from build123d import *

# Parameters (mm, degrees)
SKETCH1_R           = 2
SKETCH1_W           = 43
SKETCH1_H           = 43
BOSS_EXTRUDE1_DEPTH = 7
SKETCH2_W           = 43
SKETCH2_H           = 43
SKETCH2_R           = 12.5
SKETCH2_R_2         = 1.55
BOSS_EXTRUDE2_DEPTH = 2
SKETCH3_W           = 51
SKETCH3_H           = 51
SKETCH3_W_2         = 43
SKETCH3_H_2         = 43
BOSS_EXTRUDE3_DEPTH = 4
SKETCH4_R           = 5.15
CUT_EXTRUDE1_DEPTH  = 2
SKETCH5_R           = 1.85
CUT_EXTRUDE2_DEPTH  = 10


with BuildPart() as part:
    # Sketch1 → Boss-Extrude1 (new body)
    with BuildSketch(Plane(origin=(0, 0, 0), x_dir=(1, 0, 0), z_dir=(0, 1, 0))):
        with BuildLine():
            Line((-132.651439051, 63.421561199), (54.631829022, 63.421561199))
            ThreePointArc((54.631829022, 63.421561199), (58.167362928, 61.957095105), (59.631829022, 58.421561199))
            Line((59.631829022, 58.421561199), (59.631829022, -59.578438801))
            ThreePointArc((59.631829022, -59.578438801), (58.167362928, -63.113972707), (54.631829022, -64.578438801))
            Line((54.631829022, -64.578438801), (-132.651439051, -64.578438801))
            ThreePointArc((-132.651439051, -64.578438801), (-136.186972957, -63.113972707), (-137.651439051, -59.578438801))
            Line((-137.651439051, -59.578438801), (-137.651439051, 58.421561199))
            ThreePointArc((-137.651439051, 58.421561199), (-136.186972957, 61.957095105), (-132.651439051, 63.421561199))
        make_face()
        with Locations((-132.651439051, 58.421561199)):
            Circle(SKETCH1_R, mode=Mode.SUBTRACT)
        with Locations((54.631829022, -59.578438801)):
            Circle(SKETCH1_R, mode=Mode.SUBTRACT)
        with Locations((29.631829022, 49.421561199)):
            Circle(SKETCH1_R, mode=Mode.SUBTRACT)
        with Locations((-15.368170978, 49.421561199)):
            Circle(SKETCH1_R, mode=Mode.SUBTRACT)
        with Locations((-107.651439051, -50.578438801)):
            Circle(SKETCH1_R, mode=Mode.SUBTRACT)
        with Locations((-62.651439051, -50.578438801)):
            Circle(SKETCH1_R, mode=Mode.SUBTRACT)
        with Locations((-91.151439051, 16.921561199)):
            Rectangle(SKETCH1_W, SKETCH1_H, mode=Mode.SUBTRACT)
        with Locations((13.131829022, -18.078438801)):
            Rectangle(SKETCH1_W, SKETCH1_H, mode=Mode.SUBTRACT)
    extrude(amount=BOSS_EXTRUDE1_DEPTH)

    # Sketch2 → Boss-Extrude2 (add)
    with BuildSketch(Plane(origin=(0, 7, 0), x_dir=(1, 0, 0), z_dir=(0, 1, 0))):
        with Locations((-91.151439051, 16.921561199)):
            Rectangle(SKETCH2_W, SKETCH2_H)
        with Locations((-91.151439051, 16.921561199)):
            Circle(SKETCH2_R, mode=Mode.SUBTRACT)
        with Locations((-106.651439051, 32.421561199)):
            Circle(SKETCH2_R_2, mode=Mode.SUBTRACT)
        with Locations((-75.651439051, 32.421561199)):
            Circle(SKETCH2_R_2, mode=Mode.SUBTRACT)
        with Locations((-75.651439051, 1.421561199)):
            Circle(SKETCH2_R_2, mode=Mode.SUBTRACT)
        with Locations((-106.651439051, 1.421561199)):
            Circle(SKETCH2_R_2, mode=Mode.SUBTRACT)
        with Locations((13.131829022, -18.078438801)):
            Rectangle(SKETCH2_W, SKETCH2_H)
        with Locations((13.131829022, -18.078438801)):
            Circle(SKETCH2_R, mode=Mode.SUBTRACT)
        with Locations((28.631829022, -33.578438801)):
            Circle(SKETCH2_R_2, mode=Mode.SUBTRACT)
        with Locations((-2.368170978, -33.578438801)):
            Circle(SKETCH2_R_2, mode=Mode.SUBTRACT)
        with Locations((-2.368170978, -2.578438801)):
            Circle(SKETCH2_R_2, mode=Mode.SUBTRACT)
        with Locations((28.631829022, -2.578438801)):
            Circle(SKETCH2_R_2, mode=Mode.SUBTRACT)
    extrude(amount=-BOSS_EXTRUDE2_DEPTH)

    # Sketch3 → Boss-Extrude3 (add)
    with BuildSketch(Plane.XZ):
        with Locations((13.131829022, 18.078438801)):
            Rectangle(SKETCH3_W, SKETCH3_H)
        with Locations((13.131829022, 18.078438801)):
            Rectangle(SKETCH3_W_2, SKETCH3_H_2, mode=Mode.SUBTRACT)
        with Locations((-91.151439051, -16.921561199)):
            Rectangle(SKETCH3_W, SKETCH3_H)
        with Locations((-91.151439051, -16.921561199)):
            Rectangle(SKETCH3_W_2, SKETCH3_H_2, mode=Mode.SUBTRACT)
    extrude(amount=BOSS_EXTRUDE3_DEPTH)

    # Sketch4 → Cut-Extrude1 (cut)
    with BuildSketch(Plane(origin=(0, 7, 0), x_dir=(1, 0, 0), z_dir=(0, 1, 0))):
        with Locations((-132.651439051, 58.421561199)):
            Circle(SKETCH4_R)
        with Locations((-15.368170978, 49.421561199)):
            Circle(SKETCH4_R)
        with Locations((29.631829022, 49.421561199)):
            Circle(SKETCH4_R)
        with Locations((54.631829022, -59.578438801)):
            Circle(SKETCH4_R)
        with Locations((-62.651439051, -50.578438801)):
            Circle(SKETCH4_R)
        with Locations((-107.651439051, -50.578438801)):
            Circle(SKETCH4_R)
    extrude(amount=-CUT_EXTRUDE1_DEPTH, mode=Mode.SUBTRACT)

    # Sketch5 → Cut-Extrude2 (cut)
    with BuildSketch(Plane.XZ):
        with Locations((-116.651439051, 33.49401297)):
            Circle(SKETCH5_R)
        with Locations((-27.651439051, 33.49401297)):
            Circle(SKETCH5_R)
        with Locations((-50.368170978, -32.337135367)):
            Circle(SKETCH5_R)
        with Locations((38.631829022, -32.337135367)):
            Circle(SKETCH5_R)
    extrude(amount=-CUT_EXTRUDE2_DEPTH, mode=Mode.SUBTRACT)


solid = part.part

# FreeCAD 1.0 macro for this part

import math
import FreeCAD as App
import Part
import Sketcher
from FreeCAD import Vector
Q = App.Units.Quantity


def add_polygon(sketch, points):
    """Adds a closed chain of lines whose ends are joined by coincident constraints."""
    first, n = sketch.GeometryCount, len(points)
    for a, b in zip(points, points[1:] + points[:1]):
        sketch.addGeometry(Part.LineSegment(App.Vector(*a, 0), App.Vector(*b, 0)), False)
    for i in range(n):
        sketch.addConstraint(Sketcher.Constraint("Coincident", first + i, 2, first + (i + 1) % n, 1))

doc = App.newDocument("Part")
body = doc.addObject("PartDesign::Body", "Body")

# Sketch on XZ plane
sketch1 = body.newObject("Sketcher::SketchObject", "Sketch")
sketch1.AttachmentSupport = (doc.getObject("XZ_Plane"), [""])
sketch1.MapMode = "FlatFace"
sketch1.addGeometry(Part.LineSegment(Vector(54.631829, -63.421561, 0), Vector(-132.651439, -63.421561, 0)), False)  # 0
sketch1.addGeometry(Part.ArcOfCircle(Part.Circle(Vector(-132.651439, -58.421561, 0), Vector(0, 0, 1), 5), math.radians(180), math.radians(270)), False)  # 1
sketch1.addGeometry(Part.LineSegment(Vector(-137.651439, -58.421561, 0), Vector(-137.651439, 59.578439, 0)), False)  # 2
sketch1.addGeometry(Part.ArcOfCircle(Part.Circle(Vector(-132.651439, 59.578439, 0), Vector(0, 0, 1), 5), math.radians(90), math.radians(180)), False)  # 3
sketch1.addGeometry(Part.LineSegment(Vector(-132.651439, 64.578439, 0), Vector(54.631829, 64.578439, 0)), False)  # 4
sketch1.addGeometry(Part.ArcOfCircle(Part.Circle(Vector(54.631829, 59.578439, 0), Vector(0, 0, 1), 5), math.radians(0), math.radians(90)), False)  # 5
sketch1.addGeometry(Part.LineSegment(Vector(59.631829, 59.578439, 0), Vector(59.631829, -58.421561, 0)), False)  # 6
sketch1.addGeometry(Part.ArcOfCircle(Part.Circle(Vector(54.631829, -58.421561, 0), Vector(0, 0, 1), 5), math.radians(-90), math.radians(0)), False)  # 7
sketch1.addGeometry(Part.Circle(Vector(54.631829, 59.578439, 0), Vector(0, 0, 1), 2), False)  # 8
add_polygon(sketch1, [(-8.368171, 39.578439), (-8.368171, -3.421561), (34.631829, -3.421561), (34.631829, 39.578439)])  # lines 9-12
sketch1.addGeometry(Part.Circle(Vector(-62.651439, 50.578439, 0), Vector(0, 0, 1), 2), False)  # 13
sketch1.addGeometry(Part.Circle(Vector(-107.651439, 50.578439, 0), Vector(0, 0, 1), 2), False)  # 14
sketch1.addGeometry(Part.Circle(Vector(29.631829, -49.421561, 0), Vector(0, 0, 1), 2), False)  # 15
sketch1.addGeometry(Part.Circle(Vector(-15.368171, -49.421561, 0), Vector(0, 0, 1), 2), False)  # 16
add_polygon(sketch1, [(-112.651439, 4.578439), (-112.651439, -38.421561), (-69.651439, -38.421561), (-69.651439, 4.578439)])  # lines 17-20
sketch1.addGeometry(Part.Circle(Vector(-132.651439, -58.421561, 0), Vector(0, 0, 1), 2), False)  # 21
sketch1.addConstraint(Sketcher.Constraint("Tangent", 0, 2, 1, 2))
sketch1.addConstraint(Sketcher.Constraint("Tangent", 1, 1, 2, 1))
sketch1.addConstraint(Sketcher.Constraint("Tangent", 2, 2, 3, 2))
sketch1.addConstraint(Sketcher.Constraint("Tangent", 3, 1, 4, 1))
sketch1.addConstraint(Sketcher.Constraint("Tangent", 4, 2, 5, 2))
sketch1.addConstraint(Sketcher.Constraint("Tangent", 5, 1, 6, 1))
sketch1.addConstraint(Sketcher.Constraint("Tangent", 6, 2, 7, 2))
sketch1.addConstraint(Sketcher.Constraint("Tangent", 7, 1, 0, 1))
sketch1.addConstraint(Sketcher.Constraint("Horizontal", 0))
sketch1.addConstraint(Sketcher.Constraint("Vertical", 2))
sketch1.addConstraint(Sketcher.Constraint("Horizontal", 4))
sketch1.addConstraint(Sketcher.Constraint("Vertical", 6))
sketch1.addConstraint(Sketcher.Constraint("Vertical", 9))
sketch1.addConstraint(Sketcher.Constraint("Horizontal", 10))
sketch1.addConstraint(Sketcher.Constraint("Vertical", 11))
sketch1.addConstraint(Sketcher.Constraint("Horizontal", 12))
sketch1.addConstraint(Sketcher.Constraint("Vertical", 17))
sketch1.addConstraint(Sketcher.Constraint("Horizontal", 18))
sketch1.addConstraint(Sketcher.Constraint("Vertical", 19))
sketch1.addConstraint(Sketcher.Constraint("Horizontal", 20))
sketch1.addConstraint(Sketcher.Constraint("Coincident", 8, 3, 5, 3))
sketch1.addConstraint(Sketcher.Constraint("Coincident", 21, 3, 1, 3))
sketch1.addConstraint(Sketcher.Constraint("Equal", 1, 3))
sketch1.addConstraint(Sketcher.Constraint("Equal", 3, 5))
sketch1.addConstraint(Sketcher.Constraint("Equal", 5, 7))
sketch1.addConstraint(Sketcher.Constraint("Equal", 8, 13))
sketch1.addConstraint(Sketcher.Constraint("Equal", 13, 14))
sketch1.addConstraint(Sketcher.Constraint("Equal", 14, 15))
sketch1.addConstraint(Sketcher.Constraint("Equal", 15, 16))
sketch1.addConstraint(Sketcher.Constraint("Equal", 16, 21))
sketch1.addConstraint(Sketcher.Constraint("Horizontal", 13, 3, 14, 3))
sketch1.addConstraint(Sketcher.Constraint("Horizontal", 15, 3, 16, 3))
sketch1.addConstraint(Sketcher.Constraint("Equal", 12, 18))
sketch1.addConstraint(Sketcher.Constraint("Equal", 20, 9))
sketch1.addConstraint(Sketcher.Constraint("Equal", 11, 17))
sketch1.addConstraint(Sketcher.Constraint("Diameter", 8, Q("4 mm")))
sketch1.addConstraint(Sketcher.Constraint("Radius", 1, Q("5 mm")))
sketch1.addConstraint(Sketcher.Constraint("DistanceX", 10, 1, 10, 2, Q("43 mm")))
sketch1.addConstraint(Sketcher.Constraint("DistanceY", 2, 1, 2, 2, Q("118 mm")))
sketch1.addConstraint(Sketcher.Constraint("DistanceX", 3, 3, 13, 3, Q("70 mm")))
sketch1.addConstraint(Sketcher.Constraint("DistanceY", 13, 3, 3, 3, Q("9 mm")))
sketch1.addConstraint(Sketcher.Constraint("DistanceX", 3, 3, 14, 3, Q("25 mm")))
sketch1.addConstraint(Sketcher.Constraint("DistanceX", 15, 3, 7, 3, Q("25 mm")))
sketch1.addConstraint(Sketcher.Constraint("DistanceY", 7, 3, 15, 3, Q("9 mm")))
sketch1.addConstraint(Sketcher.Constraint("DistanceX", 16, 3, 15, 3, Q("45 mm")))
sketch1.addConstraint(Sketcher.Constraint("DistanceX", 16, 3, 9, 2, Q("7 mm")))
sketch1.addConstraint(Sketcher.Constraint("DistanceY", 16, 3, 9, 2, Q("46 mm")))
sketch1.addConstraint(Sketcher.Constraint("DistanceX", 1, 3, 17, 2, Q("20 mm")))
sketch1.addConstraint(Sketcher.Constraint("DistanceY", 1, 3, 17, 2, Q("20 mm")))
sketch1.addConstraint(Sketcher.Constraint("DistanceX", 0, 2, 0, 1, Q("187.283268 mm")))
sketch1.addConstraint(Sketcher.Constraint("DistanceX", 1, 3, -1, 1, Q("132.651439 mm")))
sketch1.addConstraint(Sketcher.Constraint("DistanceY", 1, 3, -1, 1, Q("58.421561 mm")))
pad1 = body.newObject("PartDesign::Pad", "Pad")
pad1.Profile = sketch1
pad1.Length = 7
pad1.Reversed = True

# Sketch on XZ plane
sketch2 = body.newObject("Sketcher::SketchObject", "Sketch001")
sketch2.AttachmentSupport = (doc.getObject("XZ_Plane"), [""])
sketch2.MapMode = "FlatFace"
sketch2.AttachmentOffset = App.Placement(Vector(0, 0, -7), App.Rotation())
add_polygon(sketch2, [(-112.651439, -38.421561), (-112.651439, 4.578439), (-69.651439, 4.578439), (-69.651439, -38.421561)])  # lines 0-3
sketch2.addGeometry(Part.Circle(Vector(-106.651439, -1.421561, 0), Vector(0, 0, 1), 1.55), False)  # 4
sketch2.addGeometry(Part.Circle(Vector(-75.651439, -1.421561, 0), Vector(0, 0, 1), 1.55), False)  # 5
sketch2.addGeometry(Part.Circle(Vector(-91.151439, -16.921561, 0), Vector(0, 0, 1), 12.5), False)  # 6
sketch2.addGeometry(Part.Circle(Vector(-106.651439, -32.421561, 0), Vector(0, 0, 1), 1.55), False)  # 7
sketch2.addGeometry(Part.Circle(Vector(-75.651439, -32.421561, 0), Vector(0, 0, 1), 1.55), False)  # 8
add_polygon(sketch2, [(-8.368171, -3.421561), (-8.368171, 39.578439), (34.631829, 39.578439), (34.631829, -3.421561)])  # lines 9-12
sketch2.addGeometry(Part.Circle(Vector(-2.368171, 33.578439, 0), Vector(0, 0, 1), 1.55), False)  # 13
sketch2.addGeometry(Part.Circle(Vector(28.631829, 33.578439, 0), Vector(0, 0, 1), 1.55), False)  # 14
sketch2.addGeometry(Part.Circle(Vector(-2.368171, 2.578439, 0), Vector(0, 0, 1), 1.55), False)  # 15
sketch2.addGeometry(Part.Circle(Vector(13.131829, 18.078439, 0), Vector(0, 0, 1), 12.5), False)  # 16
sketch2.addGeometry(Part.Circle(Vector(28.631829, 2.578439, 0), Vector(0, 0, 1), 1.55), False)  # 17
sketch2.addConstraint(Sketcher.Constraint("Vertical", 0))
sketch2.addConstraint(Sketcher.Constraint("Horizontal", 1))
sketch2.addConstraint(Sketcher.Constraint("Vertical", 2))
sketch2.addConstraint(Sketcher.Constraint("Horizontal", 3))
sketch2.addConstraint(Sketcher.Constraint("Vertical", 9))
sketch2.addConstraint(Sketcher.Constraint("Horizontal", 10))
sketch2.addConstraint(Sketcher.Constraint("Vertical", 11))
sketch2.addConstraint(Sketcher.Constraint("Horizontal", 12))
sketch2.addConstraint(Sketcher.Constraint("Equal", 4, 5))
sketch2.addConstraint(Sketcher.Constraint("Equal", 5, 7))
sketch2.addConstraint(Sketcher.Constraint("Equal", 7, 8))
sketch2.addConstraint(Sketcher.Constraint("Equal", 8, 13))
sketch2.addConstraint(Sketcher.Constraint("Equal", 13, 14))
sketch2.addConstraint(Sketcher.Constraint("Equal", 14, 15))
sketch2.addConstraint(Sketcher.Constraint("Equal", 6, 16))
sketch2.addConstraint(Sketcher.Constraint("Equal", 15, 17))
sketch2.addConstraint(Sketcher.Constraint("Horizontal", 4, 3, 5, 3))
sketch2.addConstraint(Sketcher.Constraint("Horizontal", 7, 3, 8, 3))
sketch2.addConstraint(Sketcher.Constraint("Horizontal", 13, 3, 14, 3))
sketch2.addConstraint(Sketcher.Constraint("Horizontal", 15, 3, 17, 3))
sketch2.addConstraint(Sketcher.Constraint("Vertical", 4, 3, 7, 3))
sketch2.addConstraint(Sketcher.Constraint("Vertical", 5, 3, 8, 3))
sketch2.addConstraint(Sketcher.Constraint("Vertical", 13, 3, 15, 3))
sketch2.addConstraint(Sketcher.Constraint("Vertical", 14, 3, 17, 3))
sketch2.addConstraint(Sketcher.Constraint("Equal", 3, 10))
sketch2.addConstraint(Sketcher.Constraint("Equal", 12, 0))
sketch2.addConstraint(Sketcher.Constraint("Equal", 2, 9))
sketch2.addConstraint(Sketcher.Constraint("Diameter", 6, Q("25 mm")))
sketch2.addConstraint(Sketcher.Constraint("Diameter", 4, Q("3.1 mm")))
sketch2.addConstraint(Sketcher.Constraint("DistanceX", 1, 1, 1, 2, Q("43 mm")))
sketch2.addConstraint(Sketcher.Constraint("DistanceX", 4, 3, 5, 3, Q("31 mm")))
sketch2.addConstraint(Sketcher.Constraint("DistanceY", 7, 3, 4, 3, Q("31 mm")))
sketch2.addConstraint(Sketcher.Constraint("DistanceY", 5, 3, 13, 3, Q("35 mm")))
sketch2.addConstraint(Sketcher.Constraint("DistanceX", 13, 3, 14, 3, Q("31 mm")))
sketch2.addConstraint(Sketcher.Constraint("DistanceY", 15, 3, 13, 3, Q("31 mm")))
sketch2.addConstraint(Sketcher.Constraint("DistanceX", 0, 2, 4, 3, Q("6 mm")))
sketch2.addConstraint(Sketcher.Constraint("DistanceY", 4, 3, 0, 2, Q("6 mm")))
sketch2.addConstraint(Sketcher.Constraint("DistanceX", 9, 2, 13, 3, Q("6 mm")))
sketch2.addConstraint(Sketcher.Constraint("DistanceY", 13, 3, 9, 2, Q("6 mm")))
sketch2.addConstraint(Sketcher.Constraint("DistanceX", 4, 3, 6, 3, Q("15.5 mm")))
sketch2.addConstraint(Sketcher.Constraint("DistanceY", 6, 3, 4, 3, Q("15.5 mm")))
sketch2.addConstraint(Sketcher.Constraint("DistanceX", 13, 3, 16, 3, Q("15.5 mm")))
sketch2.addConstraint(Sketcher.Constraint("DistanceY", 16, 3, 13, 3, Q("15.5 mm")))
sketch2.addConstraint(Sketcher.Constraint("DistanceX", 4, 3, -1, 1, Q("106.651439 mm")))
sketch2.addConstraint(Sketcher.Constraint("DistanceY", 4, 3, -1, 1, Q("1.421561 mm")))
sketch2.addConstraint(Sketcher.Constraint("DistanceX", 13, 3, -1, 1, Q("2.368171 mm")))
pad2 = body.newObject("PartDesign::Pad", "Pad001")
pad2.Profile = sketch2
pad2.Length = 2

# Sketch on XZ plane
sketch3 = body.newObject("Sketcher::SketchObject", "Sketch002")
sketch3.AttachmentSupport = (doc.getObject("XZ_Plane"), [""])
sketch3.MapMode = "FlatFace"
add_polygon(sketch3, [(-12.368171, 43.578439), (-12.368171, -7.421561), (38.631829, -7.421561), (38.631829, 43.578439)])  # lines 0-3
add_polygon(sketch3, [(34.631829, -3.421561), (-8.368171, -3.421561), (-8.368171, 39.578439), (34.631829, 39.578439)])  # lines 4-7
add_polygon(sketch3, [(-116.651439, 8.578439), (-116.651439, -42.421561), (-65.651439, -42.421561), (-65.651439, 8.578439)])  # lines 8-11
add_polygon(sketch3, [(-69.651439, -38.421561), (-112.651439, -38.421561), (-112.651439, 4.578439), (-69.651439, 4.578439)])  # lines 12-15
sketch3.addConstraint(Sketcher.Constraint("Vertical", 0))
sketch3.addConstraint(Sketcher.Constraint("Horizontal", 1))
sketch3.addConstraint(Sketcher.Constraint("Vertical", 2))
sketch3.addConstraint(Sketcher.Constraint("Horizontal", 3))
sketch3.addConstraint(Sketcher.Constraint("Horizontal", 4))
sketch3.addConstraint(Sketcher.Constraint("Vertical", 5))
sketch3.addConstraint(Sketcher.Constraint("Horizontal", 6))
sketch3.addConstraint(Sketcher.Constraint("Vertical", 7))
sketch3.addConstraint(Sketcher.Constraint("Vertical", 8))
sketch3.addConstraint(Sketcher.Constraint("Horizontal", 9))
sketch3.addConstraint(Sketcher.Constraint("Vertical", 10))
sketch3.addConstraint(Sketcher.Constraint("Horizontal", 11))
sketch3.addConstraint(Sketcher.Constraint("Horizontal", 12))
sketch3.addConstraint(Sketcher.Constraint("Vertical", 13))
sketch3.addConstraint(Sketcher.Constraint("Horizontal", 14))
sketch3.addConstraint(Sketcher.Constraint("Vertical", 15))
sketch3.addConstraint(Sketcher.Constraint("Equal", 3, 9))
sketch3.addConstraint(Sketcher.Constraint("Equal", 6, 12))
sketch3.addConstraint(Sketcher.Constraint("Equal", 11, 0))
sketch3.addConstraint(Sketcher.Constraint("Equal", 14, 5))
sketch3.addConstraint(Sketcher.Constraint("Equal", 2, 8))
sketch3.addConstraint(Sketcher.Constraint("Equal", 7, 13))
sketch3.addConstraint(Sketcher.Constraint("DistanceX", 1, 1, 1, 2, Q("51 mm")))
sketch3.addConstraint(Sketcher.Constraint("DistanceX", 4, 2, 4, 1, Q("43 mm")))
sketch3.addConstraint(Sketcher.Constraint("DistanceX", 0, 2, 4, 2, Q("4 mm")))
sketch3.addConstraint(Sketcher.Constraint("DistanceY", 0, 2, 4, 2, Q("4 mm")))
sketch3.addConstraint(Sketcher.Constraint("DistanceY", 8, 2, 0, 2, Q("35 mm")))
sketch3.addConstraint(Sketcher.Constraint("DistanceX", 8, 2, 12, 2, Q("4 mm")))
sketch3.addConstraint(Sketcher.Constraint("DistanceY", 8, 2, 12, 2, Q("4 mm")))
sketch3.addConstraint(Sketcher.Constraint("DistanceX", 0, 2, -1, 1, Q("12.368171 mm")))
sketch3.addConstraint(Sketcher.Constraint("DistanceY", 0, 2, -1, 1, Q("7.421561 mm")))
sketch3.addConstraint(Sketcher.Constraint("DistanceX", 8, 2, -1, 1, Q("116.651439 mm")))
pad3 = body.newObject("PartDesign::Pad", "Pad002")
pad3.Profile = sketch3
pad3.Length = 4

# Sketch on XZ plane
sketch4 = body.newObject("Sketcher::SketchObject", "Sketch003")
sketch4.AttachmentSupport = (doc.getObject("XZ_Plane"), [""])
sketch4.MapMode = "FlatFace"
sketch4.AttachmentOffset = App.Placement(Vector(0, 0, -7), App.Rotation())
sketch4.addGeometry(Part.Circle(Vector(-132.651439, -58.421561, 0), Vector(0, 0, 1), 5.15), False)
sketch4.addGeometry(Part.Circle(Vector(-15.368171, -49.421561, 0), Vector(0, 0, 1), 5.15), False)
sketch4.addGeometry(Part.Circle(Vector(29.631829, -49.421561, 0), Vector(0, 0, 1), 5.15), False)
sketch4.addGeometry(Part.Circle(Vector(54.631829, 59.578439, 0), Vector(0, 0, 1), 5.15), False)
sketch4.addGeometry(Part.Circle(Vector(-62.651439, 50.578439, 0), Vector(0, 0, 1), 5.15), False)
sketch4.addGeometry(Part.Circle(Vector(-107.651439, 50.578439, 0), Vector(0, 0, 1), 5.15), False)
sketch4.addConstraint(Sketcher.Constraint("Equal", 0, 1))
sketch4.addConstraint(Sketcher.Constraint("Equal", 1, 2))
sketch4.addConstraint(Sketcher.Constraint("Equal", 2, 3))
sketch4.addConstraint(Sketcher.Constraint("Equal", 3, 4))
sketch4.addConstraint(Sketcher.Constraint("Equal", 4, 5))
sketch4.addConstraint(Sketcher.Constraint("Horizontal", 1, 3, 2, 3))
sketch4.addConstraint(Sketcher.Constraint("Horizontal", 4, 3, 5, 3))
sketch4.addConstraint(Sketcher.Constraint("Diameter", 0, Q("10.3 mm")))
sketch4.addConstraint(Sketcher.Constraint("DistanceY", 0, 3, 1, 3, Q("9 mm")))
sketch4.addConstraint(Sketcher.Constraint("DistanceX", 1, 3, 2, 3, Q("45 mm")))
sketch4.addConstraint(Sketcher.Constraint("DistanceX", 2, 3, 3, 3, Q("25 mm")))
sketch4.addConstraint(Sketcher.Constraint("DistanceY", 2, 3, 3, 3, Q("109 mm")))
sketch4.addConstraint(Sketcher.Constraint("DistanceY", 1, 3, 4, 3, Q("100 mm")))
sketch4.addConstraint(Sketcher.Constraint("DistanceX", 0, 3, 4, 3, Q("70 mm")))
sketch4.addConstraint(Sketcher.Constraint("DistanceX", 5, 3, 4, 3, Q("45 mm")))
sketch4.addConstraint(Sketcher.Constraint("DistanceX", 0, 3, -1, 1, Q("132.651439 mm")))
sketch4.addConstraint(Sketcher.Constraint("DistanceY", 0, 3, -1, 1, Q("58.421561 mm")))
sketch4.addConstraint(Sketcher.Constraint("DistanceX", 1, 3, -1, 1, Q("15.368171 mm")))
pocket1 = body.newObject("PartDesign::Pocket", "Pocket")
pocket1.Profile = sketch4
pocket1.Length = 2
pocket1.Reversed = True

# Sketch on XZ plane
sketch5 = body.newObject("Sketcher::SketchObject", "Sketch004")
sketch5.AttachmentSupport = (doc.getObject("XZ_Plane"), [""])
sketch5.MapMode = "FlatFace"
sketch5.addGeometry(Part.Circle(Vector(-116.651439, 33.494013, 0), Vector(0, 0, 1), 1.85), False)
sketch5.addGeometry(Part.Circle(Vector(-27.651439, 33.494013, 0), Vector(0, 0, 1), 1.85), False)
sketch5.addGeometry(Part.Circle(Vector(-50.368171, -32.337135, 0), Vector(0, 0, 1), 1.85), False)
sketch5.addGeometry(Part.Circle(Vector(38.631829, -32.337135, 0), Vector(0, 0, 1), 1.85), False)
sketch5.addConstraint(Sketcher.Constraint("Equal", 0, 1))
sketch5.addConstraint(Sketcher.Constraint("Equal", 1, 2))
sketch5.addConstraint(Sketcher.Constraint("Equal", 2, 3))
sketch5.addConstraint(Sketcher.Constraint("Horizontal", 0, 3, 1, 3))
sketch5.addConstraint(Sketcher.Constraint("Horizontal", 2, 3, 3, 3))
sketch5.addConstraint(Sketcher.Constraint("Diameter", 0, Q("3.7 mm")))
sketch5.addConstraint(Sketcher.Constraint("DistanceX", 0, 3, 1, 3, Q("89 mm")))
sketch5.addConstraint(Sketcher.Constraint("DistanceX", 2, 3, 3, 3, Q("89 mm")))
sketch5.addConstraint(Sketcher.Constraint("DistanceX", 0, 3, -1, 1, Q("116.651439 mm")))
sketch5.addConstraint(Sketcher.Constraint("DistanceX", 2, 3, -1, 1, Q("50.368171 mm")))
sketch5.addConstraint(Sketcher.Constraint("DistanceY", 2, 3, 1, 3, Q("65.831148 mm")))
sketch5.addConstraint(Sketcher.Constraint("DistanceY", -1, 1, 0, 3, Q("33.494013 mm")))
pocket2 = body.newObject("PartDesign::Pocket", "Pocket001")
pocket2.Profile = sketch5
pocket2.Length = 10

doc.recompute()
